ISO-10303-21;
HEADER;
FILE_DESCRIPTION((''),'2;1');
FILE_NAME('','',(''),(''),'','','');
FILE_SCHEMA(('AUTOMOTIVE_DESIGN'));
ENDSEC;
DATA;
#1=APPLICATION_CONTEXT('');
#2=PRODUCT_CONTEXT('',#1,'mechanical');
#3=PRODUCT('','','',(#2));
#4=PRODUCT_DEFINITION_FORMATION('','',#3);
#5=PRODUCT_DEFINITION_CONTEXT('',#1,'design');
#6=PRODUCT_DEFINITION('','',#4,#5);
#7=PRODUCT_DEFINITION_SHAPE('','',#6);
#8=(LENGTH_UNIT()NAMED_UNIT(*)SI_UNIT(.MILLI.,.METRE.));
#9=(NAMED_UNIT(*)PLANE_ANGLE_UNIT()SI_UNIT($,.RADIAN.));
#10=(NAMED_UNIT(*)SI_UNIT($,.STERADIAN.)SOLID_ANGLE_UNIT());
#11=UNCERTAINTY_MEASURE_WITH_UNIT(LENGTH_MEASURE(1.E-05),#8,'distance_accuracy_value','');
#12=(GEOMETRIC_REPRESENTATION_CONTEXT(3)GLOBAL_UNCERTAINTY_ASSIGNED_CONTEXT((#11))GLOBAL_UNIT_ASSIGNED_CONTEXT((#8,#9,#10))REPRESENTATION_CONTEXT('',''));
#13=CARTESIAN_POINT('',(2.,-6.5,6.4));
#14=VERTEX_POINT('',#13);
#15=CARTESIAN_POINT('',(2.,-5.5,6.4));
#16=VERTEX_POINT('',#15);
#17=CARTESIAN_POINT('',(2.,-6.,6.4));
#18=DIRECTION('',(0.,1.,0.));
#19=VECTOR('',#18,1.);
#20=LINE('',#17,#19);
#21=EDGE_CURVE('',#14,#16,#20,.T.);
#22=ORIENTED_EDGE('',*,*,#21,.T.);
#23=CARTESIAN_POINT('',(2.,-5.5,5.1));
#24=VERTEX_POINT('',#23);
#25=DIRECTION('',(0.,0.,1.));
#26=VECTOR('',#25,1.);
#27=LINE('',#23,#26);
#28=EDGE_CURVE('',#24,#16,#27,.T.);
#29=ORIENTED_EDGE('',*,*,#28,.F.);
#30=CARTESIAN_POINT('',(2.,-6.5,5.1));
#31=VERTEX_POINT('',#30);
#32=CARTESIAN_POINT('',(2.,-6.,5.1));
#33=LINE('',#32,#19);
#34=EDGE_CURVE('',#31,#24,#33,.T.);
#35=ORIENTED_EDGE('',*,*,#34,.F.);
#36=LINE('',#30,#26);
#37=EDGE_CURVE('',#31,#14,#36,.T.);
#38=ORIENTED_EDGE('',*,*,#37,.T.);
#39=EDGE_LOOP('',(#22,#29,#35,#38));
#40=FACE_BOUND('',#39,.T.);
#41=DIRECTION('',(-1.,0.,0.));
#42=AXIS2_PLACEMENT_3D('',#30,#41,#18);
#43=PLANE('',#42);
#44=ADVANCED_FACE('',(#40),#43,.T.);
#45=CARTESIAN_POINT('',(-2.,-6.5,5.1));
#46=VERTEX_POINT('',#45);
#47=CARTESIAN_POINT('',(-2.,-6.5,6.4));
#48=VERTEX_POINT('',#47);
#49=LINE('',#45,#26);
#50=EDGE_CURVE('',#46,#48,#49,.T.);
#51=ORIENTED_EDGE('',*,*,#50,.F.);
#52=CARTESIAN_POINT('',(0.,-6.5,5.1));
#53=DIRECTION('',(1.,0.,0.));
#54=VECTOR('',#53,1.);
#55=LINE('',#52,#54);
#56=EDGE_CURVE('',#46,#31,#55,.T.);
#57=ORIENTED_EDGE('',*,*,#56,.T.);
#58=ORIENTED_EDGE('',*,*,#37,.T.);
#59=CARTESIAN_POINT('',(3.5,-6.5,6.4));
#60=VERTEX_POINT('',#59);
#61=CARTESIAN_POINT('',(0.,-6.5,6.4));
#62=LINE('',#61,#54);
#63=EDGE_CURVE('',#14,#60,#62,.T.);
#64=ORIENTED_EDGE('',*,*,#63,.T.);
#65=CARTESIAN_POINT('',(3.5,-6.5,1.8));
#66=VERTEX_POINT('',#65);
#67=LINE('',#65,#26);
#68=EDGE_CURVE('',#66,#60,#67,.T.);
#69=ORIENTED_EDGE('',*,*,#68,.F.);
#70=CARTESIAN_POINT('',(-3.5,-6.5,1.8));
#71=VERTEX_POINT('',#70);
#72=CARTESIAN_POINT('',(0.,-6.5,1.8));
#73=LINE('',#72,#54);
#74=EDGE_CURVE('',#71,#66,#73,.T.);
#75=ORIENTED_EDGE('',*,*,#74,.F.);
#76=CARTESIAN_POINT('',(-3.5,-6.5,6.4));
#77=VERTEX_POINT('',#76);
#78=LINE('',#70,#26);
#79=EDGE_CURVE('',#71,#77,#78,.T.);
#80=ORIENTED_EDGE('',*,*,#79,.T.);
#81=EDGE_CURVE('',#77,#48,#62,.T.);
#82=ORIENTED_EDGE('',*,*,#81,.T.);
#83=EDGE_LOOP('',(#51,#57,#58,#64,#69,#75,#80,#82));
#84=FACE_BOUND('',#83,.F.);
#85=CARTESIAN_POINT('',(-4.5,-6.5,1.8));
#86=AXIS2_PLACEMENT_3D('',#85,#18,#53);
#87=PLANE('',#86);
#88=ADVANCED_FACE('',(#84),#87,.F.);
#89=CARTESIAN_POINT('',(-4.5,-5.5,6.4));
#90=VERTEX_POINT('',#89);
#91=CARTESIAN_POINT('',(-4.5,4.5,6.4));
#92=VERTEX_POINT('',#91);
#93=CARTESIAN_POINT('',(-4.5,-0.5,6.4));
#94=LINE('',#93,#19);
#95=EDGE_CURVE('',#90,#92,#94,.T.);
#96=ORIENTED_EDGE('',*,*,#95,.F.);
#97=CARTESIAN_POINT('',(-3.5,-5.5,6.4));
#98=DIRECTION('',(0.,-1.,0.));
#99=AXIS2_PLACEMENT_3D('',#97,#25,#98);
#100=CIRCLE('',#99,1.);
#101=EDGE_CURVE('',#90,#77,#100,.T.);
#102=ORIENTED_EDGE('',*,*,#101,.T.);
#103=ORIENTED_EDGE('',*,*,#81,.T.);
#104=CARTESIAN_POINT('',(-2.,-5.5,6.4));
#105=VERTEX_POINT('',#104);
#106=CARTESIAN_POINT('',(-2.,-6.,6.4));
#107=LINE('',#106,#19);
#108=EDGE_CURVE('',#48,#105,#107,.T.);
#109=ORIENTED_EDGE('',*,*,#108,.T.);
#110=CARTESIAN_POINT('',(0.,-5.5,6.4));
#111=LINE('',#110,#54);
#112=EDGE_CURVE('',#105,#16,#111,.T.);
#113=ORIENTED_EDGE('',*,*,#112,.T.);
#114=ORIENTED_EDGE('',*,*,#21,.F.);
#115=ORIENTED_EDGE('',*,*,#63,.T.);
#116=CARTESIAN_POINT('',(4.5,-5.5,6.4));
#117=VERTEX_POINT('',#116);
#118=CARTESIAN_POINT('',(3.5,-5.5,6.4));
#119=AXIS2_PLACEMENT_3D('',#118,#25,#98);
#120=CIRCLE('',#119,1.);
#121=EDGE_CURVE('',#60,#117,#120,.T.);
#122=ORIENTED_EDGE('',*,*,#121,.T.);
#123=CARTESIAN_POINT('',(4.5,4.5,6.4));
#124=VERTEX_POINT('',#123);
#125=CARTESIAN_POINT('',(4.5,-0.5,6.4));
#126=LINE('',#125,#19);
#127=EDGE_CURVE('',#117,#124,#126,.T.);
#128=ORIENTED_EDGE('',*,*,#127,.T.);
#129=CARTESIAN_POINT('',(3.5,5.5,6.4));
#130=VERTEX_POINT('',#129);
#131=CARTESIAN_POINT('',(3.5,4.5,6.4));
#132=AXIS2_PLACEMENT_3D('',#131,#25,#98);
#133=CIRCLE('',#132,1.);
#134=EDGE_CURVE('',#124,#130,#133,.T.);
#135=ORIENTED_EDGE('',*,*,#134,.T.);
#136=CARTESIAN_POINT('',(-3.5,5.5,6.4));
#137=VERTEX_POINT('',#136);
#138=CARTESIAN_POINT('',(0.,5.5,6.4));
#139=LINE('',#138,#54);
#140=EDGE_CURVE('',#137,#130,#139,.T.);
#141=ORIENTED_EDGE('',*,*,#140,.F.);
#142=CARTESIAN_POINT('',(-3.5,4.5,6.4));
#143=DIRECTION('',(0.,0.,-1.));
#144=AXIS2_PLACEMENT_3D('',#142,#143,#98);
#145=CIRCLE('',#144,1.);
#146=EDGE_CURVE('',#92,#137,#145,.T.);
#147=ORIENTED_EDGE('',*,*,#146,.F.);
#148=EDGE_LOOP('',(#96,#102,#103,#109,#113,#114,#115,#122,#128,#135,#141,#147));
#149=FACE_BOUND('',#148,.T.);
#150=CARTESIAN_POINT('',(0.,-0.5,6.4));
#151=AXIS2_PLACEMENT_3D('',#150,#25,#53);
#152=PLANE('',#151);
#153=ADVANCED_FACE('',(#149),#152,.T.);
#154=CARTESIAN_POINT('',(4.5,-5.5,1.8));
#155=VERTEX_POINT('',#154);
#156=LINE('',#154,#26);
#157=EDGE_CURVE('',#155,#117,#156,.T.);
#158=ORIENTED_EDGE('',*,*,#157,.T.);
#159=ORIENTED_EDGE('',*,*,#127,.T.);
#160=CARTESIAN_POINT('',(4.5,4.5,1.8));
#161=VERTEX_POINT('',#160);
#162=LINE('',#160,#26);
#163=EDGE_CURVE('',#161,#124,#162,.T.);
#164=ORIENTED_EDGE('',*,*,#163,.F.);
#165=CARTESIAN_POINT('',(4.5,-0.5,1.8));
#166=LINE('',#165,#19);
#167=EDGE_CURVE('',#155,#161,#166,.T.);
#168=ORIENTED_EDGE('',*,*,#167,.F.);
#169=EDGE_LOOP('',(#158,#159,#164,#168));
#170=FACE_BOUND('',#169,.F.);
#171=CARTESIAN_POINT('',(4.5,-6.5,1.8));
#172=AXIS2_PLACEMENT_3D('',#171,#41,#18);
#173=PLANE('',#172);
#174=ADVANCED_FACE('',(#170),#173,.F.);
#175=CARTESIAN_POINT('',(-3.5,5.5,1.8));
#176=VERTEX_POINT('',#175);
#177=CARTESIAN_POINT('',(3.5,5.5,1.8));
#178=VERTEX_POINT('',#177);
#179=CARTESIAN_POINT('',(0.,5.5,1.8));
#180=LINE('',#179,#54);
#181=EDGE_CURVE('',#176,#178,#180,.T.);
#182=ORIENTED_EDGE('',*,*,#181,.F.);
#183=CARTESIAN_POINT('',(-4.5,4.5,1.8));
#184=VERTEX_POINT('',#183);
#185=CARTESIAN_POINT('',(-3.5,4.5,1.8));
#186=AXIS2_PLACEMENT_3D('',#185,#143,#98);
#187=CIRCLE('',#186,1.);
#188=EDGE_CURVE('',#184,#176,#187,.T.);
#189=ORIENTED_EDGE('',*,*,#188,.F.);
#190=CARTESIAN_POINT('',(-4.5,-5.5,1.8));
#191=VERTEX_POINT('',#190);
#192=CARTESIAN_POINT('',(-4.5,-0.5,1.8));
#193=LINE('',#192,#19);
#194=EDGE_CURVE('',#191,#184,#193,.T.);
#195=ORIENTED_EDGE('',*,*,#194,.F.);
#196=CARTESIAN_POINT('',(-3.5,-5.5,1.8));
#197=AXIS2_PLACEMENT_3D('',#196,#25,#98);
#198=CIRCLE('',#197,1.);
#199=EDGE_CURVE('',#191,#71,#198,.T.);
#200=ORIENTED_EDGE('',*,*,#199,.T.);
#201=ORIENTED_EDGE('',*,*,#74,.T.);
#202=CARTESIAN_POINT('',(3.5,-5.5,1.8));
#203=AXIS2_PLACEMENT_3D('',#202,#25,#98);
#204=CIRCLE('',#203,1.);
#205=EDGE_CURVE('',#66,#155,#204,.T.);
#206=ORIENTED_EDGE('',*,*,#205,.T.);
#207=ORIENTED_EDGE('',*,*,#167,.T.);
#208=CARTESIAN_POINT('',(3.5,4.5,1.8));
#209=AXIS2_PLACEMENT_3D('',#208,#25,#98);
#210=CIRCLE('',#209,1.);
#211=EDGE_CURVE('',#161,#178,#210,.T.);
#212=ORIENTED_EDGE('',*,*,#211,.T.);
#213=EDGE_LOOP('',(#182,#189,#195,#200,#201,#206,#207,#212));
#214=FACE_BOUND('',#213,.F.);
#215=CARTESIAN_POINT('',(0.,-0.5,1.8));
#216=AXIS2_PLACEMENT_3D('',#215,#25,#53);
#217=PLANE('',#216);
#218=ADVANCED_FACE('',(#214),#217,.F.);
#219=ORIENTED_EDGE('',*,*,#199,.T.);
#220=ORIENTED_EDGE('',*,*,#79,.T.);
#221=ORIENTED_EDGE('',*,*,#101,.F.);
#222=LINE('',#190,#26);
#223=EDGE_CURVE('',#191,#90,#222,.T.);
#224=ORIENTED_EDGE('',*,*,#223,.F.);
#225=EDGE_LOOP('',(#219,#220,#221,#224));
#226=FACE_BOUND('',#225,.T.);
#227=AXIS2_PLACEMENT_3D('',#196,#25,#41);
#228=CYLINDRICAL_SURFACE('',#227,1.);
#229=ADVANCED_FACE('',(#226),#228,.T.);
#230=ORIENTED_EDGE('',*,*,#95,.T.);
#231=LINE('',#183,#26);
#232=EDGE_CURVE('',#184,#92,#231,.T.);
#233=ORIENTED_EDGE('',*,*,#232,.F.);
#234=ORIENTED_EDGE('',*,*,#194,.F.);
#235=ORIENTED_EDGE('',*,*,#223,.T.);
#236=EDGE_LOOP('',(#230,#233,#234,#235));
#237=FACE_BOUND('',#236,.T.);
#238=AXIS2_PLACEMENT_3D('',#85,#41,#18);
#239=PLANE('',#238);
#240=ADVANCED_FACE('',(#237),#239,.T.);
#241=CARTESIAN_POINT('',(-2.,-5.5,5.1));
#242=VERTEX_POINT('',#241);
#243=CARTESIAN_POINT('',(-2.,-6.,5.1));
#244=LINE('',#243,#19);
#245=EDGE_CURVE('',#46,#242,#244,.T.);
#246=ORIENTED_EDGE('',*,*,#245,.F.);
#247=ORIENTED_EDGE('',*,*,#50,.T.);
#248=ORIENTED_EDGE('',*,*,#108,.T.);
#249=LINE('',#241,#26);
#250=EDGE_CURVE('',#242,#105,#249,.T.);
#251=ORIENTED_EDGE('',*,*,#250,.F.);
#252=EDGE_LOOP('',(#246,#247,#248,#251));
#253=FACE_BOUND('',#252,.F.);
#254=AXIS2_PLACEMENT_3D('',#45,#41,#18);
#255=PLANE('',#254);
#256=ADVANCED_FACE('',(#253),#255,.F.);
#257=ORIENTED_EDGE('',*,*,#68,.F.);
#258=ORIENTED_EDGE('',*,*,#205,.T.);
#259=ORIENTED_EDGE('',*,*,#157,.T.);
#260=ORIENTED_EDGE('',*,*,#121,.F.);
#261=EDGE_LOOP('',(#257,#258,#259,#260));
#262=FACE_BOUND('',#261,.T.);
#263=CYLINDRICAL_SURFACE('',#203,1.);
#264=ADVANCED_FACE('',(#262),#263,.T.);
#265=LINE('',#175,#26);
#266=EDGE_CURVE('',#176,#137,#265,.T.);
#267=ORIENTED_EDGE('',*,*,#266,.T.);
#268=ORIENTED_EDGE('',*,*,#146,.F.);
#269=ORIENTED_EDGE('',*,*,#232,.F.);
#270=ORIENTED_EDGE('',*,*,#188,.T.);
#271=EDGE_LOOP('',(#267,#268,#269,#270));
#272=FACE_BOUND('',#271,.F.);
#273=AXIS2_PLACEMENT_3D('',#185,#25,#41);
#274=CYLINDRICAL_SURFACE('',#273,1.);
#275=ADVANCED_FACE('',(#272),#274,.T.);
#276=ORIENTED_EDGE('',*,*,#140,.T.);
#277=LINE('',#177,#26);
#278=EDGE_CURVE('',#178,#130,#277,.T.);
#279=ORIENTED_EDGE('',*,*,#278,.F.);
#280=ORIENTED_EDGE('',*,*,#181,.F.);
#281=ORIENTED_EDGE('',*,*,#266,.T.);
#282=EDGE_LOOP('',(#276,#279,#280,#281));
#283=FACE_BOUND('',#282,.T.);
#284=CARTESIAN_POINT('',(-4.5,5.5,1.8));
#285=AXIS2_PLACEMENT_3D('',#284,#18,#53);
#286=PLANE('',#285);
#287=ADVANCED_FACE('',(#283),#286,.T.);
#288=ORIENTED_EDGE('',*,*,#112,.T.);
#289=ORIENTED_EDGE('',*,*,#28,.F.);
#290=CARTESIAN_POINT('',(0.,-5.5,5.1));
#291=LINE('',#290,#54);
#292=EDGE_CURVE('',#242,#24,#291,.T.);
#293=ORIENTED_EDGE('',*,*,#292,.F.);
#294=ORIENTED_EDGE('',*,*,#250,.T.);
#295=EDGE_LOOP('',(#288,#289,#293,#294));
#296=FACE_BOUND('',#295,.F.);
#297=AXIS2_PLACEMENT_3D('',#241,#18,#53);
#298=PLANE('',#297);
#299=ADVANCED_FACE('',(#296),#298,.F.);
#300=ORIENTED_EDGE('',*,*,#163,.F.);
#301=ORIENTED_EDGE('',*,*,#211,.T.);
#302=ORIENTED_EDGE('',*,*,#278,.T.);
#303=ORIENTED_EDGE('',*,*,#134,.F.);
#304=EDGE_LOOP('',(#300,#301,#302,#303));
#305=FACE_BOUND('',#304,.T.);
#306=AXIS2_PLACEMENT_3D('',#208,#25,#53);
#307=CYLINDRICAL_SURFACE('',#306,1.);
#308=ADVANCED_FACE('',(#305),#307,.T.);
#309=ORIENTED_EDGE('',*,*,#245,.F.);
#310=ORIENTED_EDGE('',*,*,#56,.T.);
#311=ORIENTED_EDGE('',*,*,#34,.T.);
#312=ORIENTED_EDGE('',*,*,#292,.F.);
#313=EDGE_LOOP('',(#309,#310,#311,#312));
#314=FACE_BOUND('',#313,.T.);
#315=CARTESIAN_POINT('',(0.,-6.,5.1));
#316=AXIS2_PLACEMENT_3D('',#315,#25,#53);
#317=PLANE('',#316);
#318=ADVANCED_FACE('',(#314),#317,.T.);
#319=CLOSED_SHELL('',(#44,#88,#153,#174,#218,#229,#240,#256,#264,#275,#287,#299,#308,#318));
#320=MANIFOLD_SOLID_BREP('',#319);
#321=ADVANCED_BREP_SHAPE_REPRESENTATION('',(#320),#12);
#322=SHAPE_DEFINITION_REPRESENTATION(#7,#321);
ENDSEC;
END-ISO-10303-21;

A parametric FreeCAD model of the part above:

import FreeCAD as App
import Part
import Sketcher

V = App.Vector
Q = App.Units.Quantity


def edges_at(feature, points):
    """Names of the edges that pass closest to the given points."""
    edges = feature.Shape.Edges
    near = lambda p: min(range(len(edges)), key=lambda i: edges[i].distToShape(Part.Vertex(*p))[0])
    return sorted({f"Edge{near(p) + 1}" for p in points})


def add_polygon(sketch, points):
    """Adds a closed chain of lines whose ends are joined by coincident constraints."""
    first, n = sketch.GeometryCount, len(points)
    for a, b in zip(points, points[1:] + points[:1]):
        sketch.addGeometry(Part.LineSegment(App.Vector(*a, 0), App.Vector(*b, 0)), False)
    for i in range(n):
        sketch.addConstraint(Sketcher.Constraint("Coincident", first + i, 2, first + (i + 1) % n, 1))

doc = App.newDocument("Part")
body = doc.addObject("PartDesign::Body", "Body")

# Sketch on XY plane
sketch1 = body.newObject("Sketcher::SketchObject", "Sketch")
sketch1.AttachmentSupport = (doc.getObject("XY_Plane"), [""])
sketch1.MapMode = "FlatFace"
sketch1.AttachmentOffset = App.Placement(V(0, 0, 5.1), App.Rotation())
add_polygon(sketch1, [(-2, -5.5), (-2, -6.5), (2, -6.5), (2, -5.5)])  # lines 0-3
sketch1.addConstraint([
    Sketcher.Constraint("Vertical", 0),
    Sketcher.Constraint("Horizontal", 1),
    Sketcher.Constraint("Vertical", 2),
    Sketcher.Constraint("Horizontal", 3),
    Sketcher.Constraint("DistanceX", 1, 1, 1, 2, Q("4 mm")),
    Sketcher.Constraint("DistanceY", 0, 2, 0, 1, Q("1 mm")),
    Sketcher.Constraint("DistanceX", 0, 2, -1, 1, Q("2 mm")),
    Sketcher.Constraint("DistanceY", 0, 2, -1, 1, Q("6.5 mm")),
])
pad1 = body.newObject("PartDesign::Pad", "Pad")
pad1.Profile = sketch1
pad1.Length = 1.3
body2 = doc.addObject("PartDesign::Body", "Body001")

# Sketch on XY plane
sketch2 = body2.newObject("Sketcher::SketchObject", "Sketch001")
sketch2.AttachmentSupport = (doc.getObject("XY_Plane001"), [""])
sketch2.MapMode = "FlatFace"
sketch2.AttachmentOffset = App.Placement(V(0, 0, 1.8), App.Rotation())
add_polygon(sketch2, [(-4.5, 5.5), (-4.5, -6.5), (4.5, -6.5), (4.5, 5.5)])  # lines 0-3
sketch2.addConstraint([
    Sketcher.Constraint("Vertical", 0),
    Sketcher.Constraint("Horizontal", 1),
    Sketcher.Constraint("Vertical", 2),
    Sketcher.Constraint("Horizontal", 3),
    Sketcher.Constraint("DistanceX", 1, 1, 1, 2, Q("9 mm")),
    Sketcher.Constraint("DistanceY", 0, 2, 0, 1, Q("12 mm")),
    Sketcher.Constraint("DistanceX", 0, 2, -1, 1, Q("4.5 mm")),
    Sketcher.Constraint("DistanceY", 0, 2, -1, 1, Q("6.5 mm")),
])
pad2 = body2.newObject("PartDesign::Pad", "Pad001")
pad2.Profile = sketch2
pad2.Length = 4.6
doc.recompute()

fillet = body2.newObject("PartDesign::Fillet", "Fillet")
fillet.Base = (pad2, edges_at(pad2, [
    (-4.5, -6.5, 4.1),
    (-4.5, 5.5, 4.1),
    (4.5, -6.5, 4.1),
    (4.5, 5.5, 4.1),
]))
fillet.Radius = 1
doc.recompute()

boolean = body2.newObject("PartDesign::Boolean", "Boolean")
boolean.Type = "Cut"
boolean.addObjects([body])

doc.recompute()
